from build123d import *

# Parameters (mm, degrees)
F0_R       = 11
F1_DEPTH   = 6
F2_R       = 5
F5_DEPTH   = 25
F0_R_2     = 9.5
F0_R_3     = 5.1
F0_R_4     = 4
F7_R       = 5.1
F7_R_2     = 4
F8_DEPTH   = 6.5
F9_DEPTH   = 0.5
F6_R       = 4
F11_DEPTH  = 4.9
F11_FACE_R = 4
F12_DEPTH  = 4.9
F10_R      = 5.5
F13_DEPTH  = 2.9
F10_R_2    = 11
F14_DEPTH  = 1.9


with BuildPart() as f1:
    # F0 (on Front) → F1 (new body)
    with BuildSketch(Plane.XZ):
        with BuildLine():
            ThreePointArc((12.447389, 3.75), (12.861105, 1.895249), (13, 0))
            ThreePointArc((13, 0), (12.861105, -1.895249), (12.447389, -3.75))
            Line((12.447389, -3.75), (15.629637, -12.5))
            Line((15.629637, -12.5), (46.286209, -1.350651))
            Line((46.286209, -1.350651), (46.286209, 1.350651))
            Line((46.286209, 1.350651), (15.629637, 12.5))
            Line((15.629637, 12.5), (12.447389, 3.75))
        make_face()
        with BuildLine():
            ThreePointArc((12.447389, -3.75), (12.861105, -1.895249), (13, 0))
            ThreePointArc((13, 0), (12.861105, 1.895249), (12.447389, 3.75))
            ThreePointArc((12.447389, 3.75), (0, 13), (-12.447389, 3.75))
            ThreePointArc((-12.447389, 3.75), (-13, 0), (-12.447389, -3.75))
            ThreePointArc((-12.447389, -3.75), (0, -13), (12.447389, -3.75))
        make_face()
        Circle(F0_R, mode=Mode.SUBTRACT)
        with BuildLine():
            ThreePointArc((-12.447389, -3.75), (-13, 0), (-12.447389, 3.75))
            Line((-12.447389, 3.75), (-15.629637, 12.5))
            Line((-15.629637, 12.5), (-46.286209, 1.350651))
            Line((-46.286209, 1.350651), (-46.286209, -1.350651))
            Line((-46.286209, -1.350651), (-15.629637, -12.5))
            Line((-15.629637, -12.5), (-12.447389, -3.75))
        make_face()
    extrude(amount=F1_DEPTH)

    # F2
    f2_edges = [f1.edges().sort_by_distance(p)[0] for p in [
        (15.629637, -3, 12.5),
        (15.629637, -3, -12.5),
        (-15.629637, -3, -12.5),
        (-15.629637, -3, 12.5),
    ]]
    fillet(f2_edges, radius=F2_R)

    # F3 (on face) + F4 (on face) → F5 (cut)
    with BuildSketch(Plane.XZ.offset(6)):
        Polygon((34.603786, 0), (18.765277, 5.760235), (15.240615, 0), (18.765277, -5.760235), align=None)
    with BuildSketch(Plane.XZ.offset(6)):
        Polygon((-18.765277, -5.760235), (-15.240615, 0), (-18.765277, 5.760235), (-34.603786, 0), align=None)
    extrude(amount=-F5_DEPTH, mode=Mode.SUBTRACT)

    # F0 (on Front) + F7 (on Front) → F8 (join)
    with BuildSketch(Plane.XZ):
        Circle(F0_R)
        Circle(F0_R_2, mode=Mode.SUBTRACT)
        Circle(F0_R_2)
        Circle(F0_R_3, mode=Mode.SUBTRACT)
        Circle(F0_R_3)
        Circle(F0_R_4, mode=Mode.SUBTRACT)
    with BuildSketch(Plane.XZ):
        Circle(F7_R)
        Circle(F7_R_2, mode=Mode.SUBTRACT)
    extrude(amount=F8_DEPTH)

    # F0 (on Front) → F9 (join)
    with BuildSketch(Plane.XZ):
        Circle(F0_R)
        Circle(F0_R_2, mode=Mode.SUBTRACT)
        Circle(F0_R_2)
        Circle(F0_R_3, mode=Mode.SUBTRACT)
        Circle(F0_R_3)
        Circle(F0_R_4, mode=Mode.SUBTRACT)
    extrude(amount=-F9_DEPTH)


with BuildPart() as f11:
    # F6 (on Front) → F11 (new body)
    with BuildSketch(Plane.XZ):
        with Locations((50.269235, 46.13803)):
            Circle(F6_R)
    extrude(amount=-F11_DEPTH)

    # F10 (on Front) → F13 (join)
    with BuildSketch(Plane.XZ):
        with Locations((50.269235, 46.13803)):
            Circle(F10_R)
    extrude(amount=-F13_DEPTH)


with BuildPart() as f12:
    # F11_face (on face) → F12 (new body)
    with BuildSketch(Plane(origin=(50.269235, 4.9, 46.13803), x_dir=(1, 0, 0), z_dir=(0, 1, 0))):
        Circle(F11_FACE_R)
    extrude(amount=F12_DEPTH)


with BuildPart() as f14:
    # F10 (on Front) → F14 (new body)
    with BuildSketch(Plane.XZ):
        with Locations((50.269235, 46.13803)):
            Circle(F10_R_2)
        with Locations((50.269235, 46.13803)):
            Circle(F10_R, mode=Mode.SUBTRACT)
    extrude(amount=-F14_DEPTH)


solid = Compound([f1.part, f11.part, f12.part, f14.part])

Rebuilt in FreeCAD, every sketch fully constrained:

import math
import FreeCAD as App
import Part
import Sketcher
from FreeCAD import Vector
Q = App.Units.Quantity


def edges_at(feature, points):
    """Names of the edges that pass closest to the given points."""
    edges = feature.Shape.Edges
    near = lambda p: min(range(len(edges)), key=lambda i: edges[i].distToShape(Part.Vertex(*p))[0])
    return sorted({f"Edge{near(p) + 1}" for p in points})

doc = App.newDocument("Part")
params = doc.addObject("Spreadsheet::Sheet", "Params")
for row, (alias, value) in enumerate([
    ("sketch1_diameter", "22 mm"),
    ("sketch1_radius", "13 mm"),
    ("pad1_length", "6 mm"),
    ("fillet_radius", "5 mm"),
    ("pocket1_length", "25 mm"),
    ("sketch3_diameter", "22 mm"),
    ("sketch3_diameter2", "8 mm"),
    ("pad2_length", "6.5 mm"),
    ("sketch4_diameter", "22 mm"),
    ("sketch4_diameter2", "8 mm"),
    ("pad3_length", "0.5 mm"),
    ("sketch5_diameter", "8 mm"),
    ("pad4_length", "4.9 mm"),
    ("sketch6_diameter", "11 mm"),
    ("pad5_length", "2.9 mm"),
    ("sketch7_diameter", "8 mm"),
    ("pad6_length", "4.9 mm"),
    ("sketch8_diameter", "22 mm"),
    ("sketch8_diameter2", "11 mm"),
    ("pad7_length", "1.9 mm"),
], start=1):
    params.set(f"A{row}", alias)
    params.set(f"B{row}", "=" + value)
    params.setAlias(f"B{row}", alias)

body = doc.addObject("PartDesign::Body", "Body")

sketch1 = body.newObject("Sketcher::SketchObject", "Sketch")
sketch1.AttachmentSupport = (doc.getObject("XZ_Plane"), [""])
sketch1.MapMode = "FlatFace"
sketch1.addGeometry([
    Part.LineSegment(Vector(12.4, -3.8, 0), Vector(15.6, -12.5, 0)),
    Part.LineSegment(Vector(15.6, -12.5, 0), Vector(46.3, -1.4, 0)),
    Part.LineSegment(Vector(46.3, -1.4, 0), Vector(46.3, 1.4, 0)),
    Part.LineSegment(Vector(46.3, 1.4, 0), Vector(15.6, 12.5, 0)),
    Part.LineSegment(Vector(15.6, 12.5, 0), Vector(12.4, 3.8, 0)),
    Part.ArcOfCircle(Part.Circle(Vector(0, 0, 0), Vector(0, 0, 1), 13), math.radians(17), math.radians(163)),
    Part.LineSegment(Vector(-12.4, 3.8, 0), Vector(-15.6, 12.5, 0)),
    Part.LineSegment(Vector(-15.6, 12.5, 0), Vector(-46.3, 1.4, 0)),
    Part.LineSegment(Vector(-46.3, 1.4, 0), Vector(-46.3, -1.4, 0)),
    Part.LineSegment(Vector(-46.3, -1.4, 0), Vector(-15.6, -12.5, 0)),
    Part.LineSegment(Vector(-15.6, -12.5, 0), Vector(-12.4, -3.8, 0)),
    Part.ArcOfCircle(Part.Circle(Vector(0, 0, 0), Vector(0, 0, 1), 13), math.radians(-163), math.radians(-17)),
    Part.Circle(Vector(0, 0, 0), Vector(0, 0, 1), 11),
], False)
sketch1.addConstraint([
    Sketcher.Constraint("Coincident", 0, 2, 1, 1),
    Sketcher.Constraint("Coincident", 1, 2, 2, 1),
    Sketcher.Constraint("Coincident", 2, 2, 3, 1),
    Sketcher.Constraint("Coincident", 3, 2, 4, 1),
    Sketcher.Constraint("Coincident", 4, 2, 5, 1),
    Sketcher.Constraint("Coincident", 5, 2, 6, 1),
    Sketcher.Constraint("Coincident", 6, 2, 7, 1),
    Sketcher.Constraint("Coincident", 7, 2, 8, 1),
    Sketcher.Constraint("Coincident", 8, 2, 9, 1),
    Sketcher.Constraint("Coincident", 9, 2, 10, 1),
    Sketcher.Constraint("Coincident", 10, 2, 11, 1),
    Sketcher.Constraint("Coincident", 11, 2, 0, 1),
    Sketcher.Constraint("Vertical", 2),
    Sketcher.Constraint("Vertical", 8),
    Sketcher.Constraint("Coincident", 5, 3, -1, 1),
    Sketcher.Constraint("Coincident", 11, 3, -1, 1),
    Sketcher.Constraint("Coincident", 12, 3, -1, 1),
    Sketcher.Constraint("Equal", 5, 11),
    Sketcher.Constraint("Symmetric", 0, 2, 6, 2, -1, 1),
    Sketcher.Constraint("Symmetric", 1, 2, 7, 2, -1, 1),
    Sketcher.Constraint("Symmetric", 3, 2, 9, 2, -1, 1),
    Sketcher.Constraint("Symmetric", 3, 2, 6, 2, -2),
    Sketcher.Constraint("Perpendicular", 0, 1),
    Sketcher.Constraint("Perpendicular", 3, 4),
    Sketcher.Constraint("Perpendicular", 1, 6),
    Sketcher.Constraint("Perpendicular", 4, 9),
    Sketcher.Constraint("Perpendicular", 9, 10),
    Sketcher.Constraint("Horizontal", 4, 2, 5, 2),
    Sketcher.Constraint("Diameter", 12, Q("22 mm")),
    Sketcher.Constraint("Radius", 5, Q("13 mm")),
    Sketcher.Constraint("DistanceY", 0, 2, 3, 2, Q("25 mm")),
    Sketcher.Constraint("DistanceY", 10, 2, 5, 2, Q("7.5 mm")),
    Sketcher.Constraint("DistanceY", 2, 1, 2, 2, Q("2.701302 mm")),
    Sketcher.Constraint("DistanceX", -1, 1, 1, 2, Q("46.286209 mm")),
])
sketch1.setExpression("Constraints[28]", "Params.sketch1_diameter")
sketch1.setExpression("Constraints[29]", "Params.sketch1_radius")
pad1 = body.newObject("PartDesign::Pad", "Pad")
pad1.Profile = sketch1
pad1.setExpression("Length", "Params.pad1_length")
doc.recompute()

fillet = body.newObject("PartDesign::Fillet", "Fillet")
fillet.Base = (pad1, edges_at(pad1, [
    (15.63, -3, 12.5),
    (15.63, -3, -12.5),
    (-15.63, -3, -12.5),
    (-15.63, -3, 12.5),
]))
fillet.setExpression("Radius", "Params.fillet_radius")

sketch2 = body.newObject("Sketcher::SketchObject", "Sketch001")
sketch2.AttachmentSupport = (doc.getObject("XZ_Plane"), [""])
sketch2.MapMode = "FlatFace"
sketch2.AttachmentOffset = App.Placement(Vector(0, 0, 6), App.Rotation())
sketch2.addGeometry([
    Part.LineSegment(Vector(35, 0, 0), Vector(19, 6, 0)),
    Part.LineSegment(Vector(19, 6, 0), Vector(15, 0, 0)),
    Part.LineSegment(Vector(15, 0, 0), Vector(19, -6, 0)),
    Part.LineSegment(Vector(19, -6, 0), Vector(35, 0, 0)),
    Part.LineSegment(Vector(-19, -6, 0), Vector(-15, 0, 0)),
    Part.LineSegment(Vector(-15, 0, 0), Vector(-19, 6, 0)),
    Part.LineSegment(Vector(-19, 6, 0), Vector(-35, 0, 0)),
    Part.LineSegment(Vector(-35, 0, 0), Vector(-19, -6, 0)),
], False)
sketch2.addConstraint([
    Sketcher.Constraint("Coincident", 0, 2, 1, 1),
    Sketcher.Constraint("Coincident", 1, 2, 2, 1),
    Sketcher.Constraint("Coincident", 2, 2, 3, 1),
    Sketcher.Constraint("Coincident", 3, 2, 0, 1),
    Sketcher.Constraint("Coincident", 4, 2, 5, 1),
    Sketcher.Constraint("Coincident", 5, 2, 6, 1),
    Sketcher.Constraint("Coincident", 6, 2, 7, 1),
    Sketcher.Constraint("Coincident", 7, 2, 4, 1),
    Sketcher.Constraint("Symmetric", 1, 2, 4, 2, -1, 1),
    Sketcher.Constraint("Symmetric", 2, 2, 5, 2, -1, 1),
    Sketcher.Constraint("Symmetric", 3, 2, 6, 2, -1, 1),
    Sketcher.Constraint("Symmetric", 0, 2, 7, 2, -1, 1),
    Sketcher.Constraint("Symmetric", 0, 2, 5, 2, -2),
    Sketcher.Constraint("PointOnObject", 1, 2, -1),
    Sketcher.Constraint("PointOnObject", 3, 2, -1),
    Sketcher.Constraint("DistanceX", 4, 2, 3, 2, Q("49.844401 mm")),
    Sketcher.Constraint("Distance", 1, Q("6.75304 mm")),
    Sketcher.Constraint("DistanceY", 2, 2, 0, 2, Q("11.52047 mm")),
    Sketcher.Constraint("DistanceX", 0, 2, 3, 2, Q("15.838509 mm")),
])
pocket1 = body.newObject("PartDesign::Pocket", "Pocket")
pocket1.Profile = sketch2
pocket1.setExpression("Length", "Params.pocket1_length")

sketch3 = body.newObject("Sketcher::SketchObject", "Sketch002")
sketch3.AttachmentSupport = (doc.getObject("XZ_Plane"), [""])
sketch3.MapMode = "FlatFace"
sketch3.addGeometry([
    Part.Circle(Vector(0, 0, 0), Vector(0, 0, 1), 11),
    Part.Circle(Vector(0, 0, 0), Vector(0, 0, 1), 4),
], False)
sketch3.addConstraint([
    Sketcher.Constraint("Coincident", 0, 3, -1, 1),
    Sketcher.Constraint("Coincident", 1, 3, -1, 1),
    Sketcher.Constraint("Diameter", 0, Q("22 mm")),
    Sketcher.Constraint("Diameter", 1, Q("8 mm")),
])
sketch3.setExpression("Constraints[2]", "Params.sketch3_diameter")
sketch3.setExpression("Constraints[3]", "Params.sketch3_diameter2")
pad2 = body.newObject("PartDesign::Pad", "Pad001")
pad2.Profile = sketch3
pad2.setExpression("Length", "Params.pad2_length")

sketch4 = body.newObject("Sketcher::SketchObject", "Sketch003")
sketch4.AttachmentSupport = (doc.getObject("XZ_Plane"), [""])
sketch4.MapMode = "FlatFace"
sketch4.addGeometry([
    Part.Circle(Vector(0, 0, 0), Vector(0, 0, 1), 11),
    Part.Circle(Vector(0, 0, 0), Vector(0, 0, 1), 4),
], False)
sketch4.addConstraint([
    Sketcher.Constraint("Coincident", 0, 3, -1, 1),
    Sketcher.Constraint("Coincident", 1, 3, -1, 1),
    Sketcher.Constraint("Diameter", 0, Q("22 mm")),
    Sketcher.Constraint("Diameter", 1, Q("8 mm")),
])
sketch4.setExpression("Constraints[2]", "Params.sketch4_diameter")
sketch4.setExpression("Constraints[3]", "Params.sketch4_diameter2")
pad3 = body.newObject("PartDesign::Pad", "Pad002")
pad3.Profile = sketch4
pad3.setExpression("Length", "Params.pad3_length")
pad3.Reversed = True
body2 = doc.addObject("PartDesign::Body", "Body001")

sketch5 = body2.newObject("Sketcher::SketchObject", "Sketch004")
sketch5.AttachmentSupport = (doc.getObject("XZ_Plane001"), [""])
sketch5.MapMode = "FlatFace"
sketch5.addGeometry(Part.Circle(Vector(50.3, 46.1, 0), Vector(0, 0, 1), 4), False)
sketch5.addConstraint([
    Sketcher.Constraint("Diameter", 0, Q("8 mm")),
    Sketcher.Constraint("DistanceY", -1, 1, 0, 3, Q("46.13803 mm")),
    Sketcher.Constraint("DistanceX", -1, 1, 0, 3, Q("50.269235 mm")),
])
sketch5.setExpression("Constraints[0]", "Params.sketch5_diameter")
pad4 = body2.newObject("PartDesign::Pad", "Pad003")
pad4.Profile = sketch5
pad4.setExpression("Length", "Params.pad4_length")
pad4.Reversed = True

sketch6 = body2.newObject("Sketcher::SketchObject", "Sketch005")
sketch6.AttachmentSupport = (doc.getObject("XZ_Plane001"), [""])
sketch6.MapMode = "FlatFace"
sketch6.addGeometry(Part.Circle(Vector(50, 46, 0), Vector(0, 0, 1), 6), False)
sketch6.addConstraint([
    Sketcher.Constraint("Diameter", 0, Q("11 mm")),
    Sketcher.Constraint("DistanceY", -1, 1, 0, 3, Q("46.13803 mm")),
    Sketcher.Constraint("DistanceX", -1, 1, 0, 3, Q("50.269235 mm")),
])
sketch6.setExpression("Constraints[0]", "Params.sketch6_diameter")
pad5 = body2.newObject("PartDesign::Pad", "Pad004")
pad5.Profile = sketch6
pad5.setExpression("Length", "Params.pad5_length")
pad5.Reversed = True
body3 = doc.addObject("PartDesign::Body", "Body002")

sketch7 = body3.newObject("Sketcher::SketchObject", "Sketch006")
sketch7.AttachmentSupport = (doc.getObject("XZ_Plane002"), [""])
sketch7.MapMode = "FlatFace"
sketch7.AttachmentOffset = App.Placement(Vector(0, 0, -4.9), App.Rotation())
sketch7.addGeometry(Part.Circle(Vector(50.3, 46.1, 0), Vector(0, 0, 1), 4), False)
sketch7.addConstraint([
    Sketcher.Constraint("Diameter", 0, Q("8 mm")),
    Sketcher.Constraint("DistanceY", -1, 1, 0, 3, Q("46.13803 mm")),
    Sketcher.Constraint("DistanceX", -1, 1, 0, 3, Q("50.269235 mm")),
])
sketch7.setExpression("Constraints[0]", "Params.sketch7_diameter")
pad6 = body3.newObject("PartDesign::Pad", "Pad005")
pad6.Profile = sketch7
pad6.setExpression("Length", "Params.pad6_length")
pad6.Reversed = True
body4 = doc.addObject("PartDesign::Body", "Body003")

sketch8 = body4.newObject("Sketcher::SketchObject", "Sketch007")
sketch8.AttachmentSupport = (doc.getObject("XZ_Plane003"), [""])
sketch8.MapMode = "FlatFace"
sketch8.addGeometry([
    Part.Circle(Vector(50, 46, 0), Vector(0, 0, 1), 11),
    Part.Circle(Vector(50, 46, 0), Vector(0, 0, 1), 6),
], False)
sketch8.addConstraint([
    Sketcher.Constraint("Coincident", 1, 3, 0, 3),
    Sketcher.Constraint("Diameter", 0, Q("22 mm")),
    Sketcher.Constraint("Diameter", 1, Q("11 mm")),
    Sketcher.Constraint("DistanceY", -1, 1, 0, 3, Q("46.13803 mm")),
    Sketcher.Constraint("DistanceX", -1, 1, 0, 3, Q("50.269235 mm")),
])
sketch8.setExpression("Constraints[1]", "Params.sketch8_diameter")
sketch8.setExpression("Constraints[2]", "Params.sketch8_diameter2")
pad7 = body4.newObject("PartDesign::Pad", "Pad006")
pad7.Profile = sketch8
pad7.setExpression("Length", "Params.pad7_length")
pad7.Reversed = True

doc.recompute()
